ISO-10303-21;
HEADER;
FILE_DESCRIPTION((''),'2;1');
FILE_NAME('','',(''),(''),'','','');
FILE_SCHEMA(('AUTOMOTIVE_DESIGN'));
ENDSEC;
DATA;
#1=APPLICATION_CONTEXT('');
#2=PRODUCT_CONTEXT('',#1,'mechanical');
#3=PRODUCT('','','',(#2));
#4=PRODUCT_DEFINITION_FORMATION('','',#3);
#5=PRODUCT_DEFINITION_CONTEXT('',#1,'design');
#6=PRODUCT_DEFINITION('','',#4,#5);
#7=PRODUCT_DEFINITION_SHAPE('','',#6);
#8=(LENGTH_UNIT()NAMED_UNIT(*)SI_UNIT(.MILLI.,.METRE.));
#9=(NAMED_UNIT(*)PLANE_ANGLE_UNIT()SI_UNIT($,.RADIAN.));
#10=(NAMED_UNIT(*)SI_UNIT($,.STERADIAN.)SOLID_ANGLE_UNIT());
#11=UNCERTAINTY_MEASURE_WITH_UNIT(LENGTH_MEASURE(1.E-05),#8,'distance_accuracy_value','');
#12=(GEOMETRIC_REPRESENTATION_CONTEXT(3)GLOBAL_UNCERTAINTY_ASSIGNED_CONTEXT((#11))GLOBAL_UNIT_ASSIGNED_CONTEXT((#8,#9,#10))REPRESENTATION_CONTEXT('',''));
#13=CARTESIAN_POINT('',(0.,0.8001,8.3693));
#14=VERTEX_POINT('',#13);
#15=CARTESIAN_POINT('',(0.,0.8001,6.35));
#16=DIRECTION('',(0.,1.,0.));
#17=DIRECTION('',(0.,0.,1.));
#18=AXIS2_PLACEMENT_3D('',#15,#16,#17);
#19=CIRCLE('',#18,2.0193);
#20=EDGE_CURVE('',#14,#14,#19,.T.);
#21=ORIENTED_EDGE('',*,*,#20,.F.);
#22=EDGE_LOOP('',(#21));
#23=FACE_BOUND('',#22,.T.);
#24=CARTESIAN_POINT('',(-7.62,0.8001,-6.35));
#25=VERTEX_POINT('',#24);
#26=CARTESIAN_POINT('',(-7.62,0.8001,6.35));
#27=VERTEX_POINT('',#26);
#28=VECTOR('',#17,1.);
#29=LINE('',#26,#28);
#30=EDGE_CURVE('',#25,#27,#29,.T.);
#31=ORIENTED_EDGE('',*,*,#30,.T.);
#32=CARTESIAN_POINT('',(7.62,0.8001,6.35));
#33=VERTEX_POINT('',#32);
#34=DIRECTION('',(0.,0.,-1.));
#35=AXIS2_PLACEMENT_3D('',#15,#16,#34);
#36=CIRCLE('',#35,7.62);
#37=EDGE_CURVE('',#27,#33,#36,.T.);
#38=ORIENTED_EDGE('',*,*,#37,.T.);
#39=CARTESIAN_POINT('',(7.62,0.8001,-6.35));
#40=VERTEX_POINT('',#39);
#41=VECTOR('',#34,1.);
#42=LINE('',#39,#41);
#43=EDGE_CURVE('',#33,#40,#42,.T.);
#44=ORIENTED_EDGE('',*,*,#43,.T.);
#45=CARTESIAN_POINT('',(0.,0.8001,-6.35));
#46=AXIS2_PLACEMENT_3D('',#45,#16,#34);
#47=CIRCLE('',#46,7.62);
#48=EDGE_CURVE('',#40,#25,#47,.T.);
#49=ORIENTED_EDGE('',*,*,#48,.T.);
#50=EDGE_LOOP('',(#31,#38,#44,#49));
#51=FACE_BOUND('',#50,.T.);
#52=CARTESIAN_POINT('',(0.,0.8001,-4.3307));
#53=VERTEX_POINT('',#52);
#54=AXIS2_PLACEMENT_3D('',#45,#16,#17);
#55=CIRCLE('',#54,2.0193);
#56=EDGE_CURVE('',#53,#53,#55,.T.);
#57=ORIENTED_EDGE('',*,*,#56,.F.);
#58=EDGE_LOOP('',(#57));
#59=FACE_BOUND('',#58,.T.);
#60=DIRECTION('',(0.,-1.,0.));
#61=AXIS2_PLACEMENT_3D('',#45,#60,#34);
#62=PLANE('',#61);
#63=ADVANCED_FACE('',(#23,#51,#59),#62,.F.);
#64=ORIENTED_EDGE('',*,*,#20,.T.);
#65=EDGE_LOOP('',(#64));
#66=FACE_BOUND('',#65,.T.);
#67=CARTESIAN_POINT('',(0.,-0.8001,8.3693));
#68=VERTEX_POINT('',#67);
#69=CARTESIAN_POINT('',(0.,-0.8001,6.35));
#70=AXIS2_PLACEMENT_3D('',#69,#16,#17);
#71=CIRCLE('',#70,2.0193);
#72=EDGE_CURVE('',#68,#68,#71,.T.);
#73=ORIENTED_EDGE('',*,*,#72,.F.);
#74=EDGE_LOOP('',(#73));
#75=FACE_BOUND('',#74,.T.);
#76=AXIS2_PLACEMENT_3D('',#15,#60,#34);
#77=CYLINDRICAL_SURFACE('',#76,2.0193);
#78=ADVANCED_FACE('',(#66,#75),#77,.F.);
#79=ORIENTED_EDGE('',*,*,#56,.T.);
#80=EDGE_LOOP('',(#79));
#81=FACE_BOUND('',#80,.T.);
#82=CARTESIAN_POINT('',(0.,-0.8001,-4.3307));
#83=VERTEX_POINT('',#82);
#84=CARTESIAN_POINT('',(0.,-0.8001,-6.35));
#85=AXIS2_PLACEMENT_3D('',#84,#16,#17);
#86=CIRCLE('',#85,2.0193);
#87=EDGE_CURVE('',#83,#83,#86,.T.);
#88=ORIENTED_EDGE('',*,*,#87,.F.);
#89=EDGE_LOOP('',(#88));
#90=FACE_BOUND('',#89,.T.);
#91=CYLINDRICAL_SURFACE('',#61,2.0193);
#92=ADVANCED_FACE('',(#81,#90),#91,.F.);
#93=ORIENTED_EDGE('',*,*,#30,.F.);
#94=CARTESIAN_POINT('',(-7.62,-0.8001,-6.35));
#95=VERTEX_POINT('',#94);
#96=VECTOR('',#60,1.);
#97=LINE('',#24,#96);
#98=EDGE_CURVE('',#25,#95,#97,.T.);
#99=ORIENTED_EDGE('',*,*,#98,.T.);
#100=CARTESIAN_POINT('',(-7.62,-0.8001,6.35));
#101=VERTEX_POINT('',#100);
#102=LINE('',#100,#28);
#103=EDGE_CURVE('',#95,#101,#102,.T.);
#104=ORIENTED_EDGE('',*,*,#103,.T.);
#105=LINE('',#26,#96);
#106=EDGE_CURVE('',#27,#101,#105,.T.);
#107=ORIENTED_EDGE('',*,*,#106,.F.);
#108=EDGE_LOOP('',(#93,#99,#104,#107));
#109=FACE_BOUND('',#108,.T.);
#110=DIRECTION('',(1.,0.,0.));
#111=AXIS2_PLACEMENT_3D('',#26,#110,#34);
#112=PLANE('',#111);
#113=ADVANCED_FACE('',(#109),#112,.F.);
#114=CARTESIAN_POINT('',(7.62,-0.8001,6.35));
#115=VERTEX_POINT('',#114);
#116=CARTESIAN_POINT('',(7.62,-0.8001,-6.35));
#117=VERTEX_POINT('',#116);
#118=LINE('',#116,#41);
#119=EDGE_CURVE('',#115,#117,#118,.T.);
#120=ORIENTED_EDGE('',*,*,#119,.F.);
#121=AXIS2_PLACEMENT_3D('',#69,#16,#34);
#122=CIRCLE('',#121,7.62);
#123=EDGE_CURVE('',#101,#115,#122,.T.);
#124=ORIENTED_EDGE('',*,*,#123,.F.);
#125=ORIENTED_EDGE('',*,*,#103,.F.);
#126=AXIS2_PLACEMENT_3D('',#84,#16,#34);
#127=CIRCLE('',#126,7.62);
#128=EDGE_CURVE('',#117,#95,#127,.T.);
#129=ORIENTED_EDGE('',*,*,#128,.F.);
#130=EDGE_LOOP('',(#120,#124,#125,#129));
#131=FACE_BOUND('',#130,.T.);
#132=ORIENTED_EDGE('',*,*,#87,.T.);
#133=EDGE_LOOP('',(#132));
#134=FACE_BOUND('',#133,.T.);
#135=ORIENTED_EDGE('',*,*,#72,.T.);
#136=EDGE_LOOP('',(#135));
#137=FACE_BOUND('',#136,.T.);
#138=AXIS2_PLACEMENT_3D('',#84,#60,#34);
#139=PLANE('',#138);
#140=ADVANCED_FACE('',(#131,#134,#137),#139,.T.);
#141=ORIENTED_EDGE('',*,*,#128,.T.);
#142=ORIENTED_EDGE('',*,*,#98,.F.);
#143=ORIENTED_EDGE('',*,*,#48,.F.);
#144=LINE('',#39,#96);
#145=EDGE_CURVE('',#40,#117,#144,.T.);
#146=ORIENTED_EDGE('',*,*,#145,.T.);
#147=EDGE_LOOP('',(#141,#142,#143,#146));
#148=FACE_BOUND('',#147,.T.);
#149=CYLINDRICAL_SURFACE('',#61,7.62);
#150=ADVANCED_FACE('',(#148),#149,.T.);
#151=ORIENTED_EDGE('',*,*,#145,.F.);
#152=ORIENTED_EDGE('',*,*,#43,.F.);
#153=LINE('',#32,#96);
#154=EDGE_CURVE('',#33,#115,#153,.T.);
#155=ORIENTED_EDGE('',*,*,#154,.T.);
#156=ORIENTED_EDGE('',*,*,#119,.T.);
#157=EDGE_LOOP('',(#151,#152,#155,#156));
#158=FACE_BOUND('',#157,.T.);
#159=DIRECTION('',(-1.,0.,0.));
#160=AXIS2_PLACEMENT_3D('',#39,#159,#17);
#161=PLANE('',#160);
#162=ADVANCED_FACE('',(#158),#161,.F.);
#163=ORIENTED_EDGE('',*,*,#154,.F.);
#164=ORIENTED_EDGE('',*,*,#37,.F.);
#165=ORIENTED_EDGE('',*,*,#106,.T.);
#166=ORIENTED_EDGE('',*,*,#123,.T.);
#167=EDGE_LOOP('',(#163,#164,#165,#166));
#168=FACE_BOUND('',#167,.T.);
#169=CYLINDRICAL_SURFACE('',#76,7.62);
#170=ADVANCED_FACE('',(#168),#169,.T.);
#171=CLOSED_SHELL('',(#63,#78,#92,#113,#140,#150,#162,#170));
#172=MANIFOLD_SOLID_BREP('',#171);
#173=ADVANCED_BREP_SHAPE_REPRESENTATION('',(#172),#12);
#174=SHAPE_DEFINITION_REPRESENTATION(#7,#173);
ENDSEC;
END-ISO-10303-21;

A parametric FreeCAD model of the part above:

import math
import FreeCAD as App
import Part
import Sketcher
from FreeCAD import Vector
Q = App.Units.Quantity

doc = App.newDocument("Part")
body = doc.addObject("PartDesign::Body", "Body")

sketch1 = doc.addObject("Sketcher::SketchObject", "Sketch")
body.addObject(sketch1)
sketch1.AttachmentSupport = (doc.XZ_Plane, [""])
sketch1.MapMode = "FlatFace"
sketch1.addGeometry([
    Part.LineSegment(Vector(-7.62, -6.35, 0), Vector(-7.62, 6.35, 0)),
    Part.ArcOfCircle(Part.Circle(Vector(0, 6.35, 0), Vector(0, 0, 1), 7.62), math.radians(0), math.radians(180)),
    Part.LineSegment(Vector(7.62, 6.35, 0), Vector(7.62, -6.35, 0)),
    Part.ArcOfCircle(Part.Circle(Vector(0, -6.35, 0), Vector(0, 0, 1), 7.62), math.radians(180), math.radians(360)),
    Part.Circle(Vector(0, 6.35, 0), Vector(0, 0, 1), 2.0193),
    Part.Circle(Vector(0, -6.35, 0), Vector(0, 0, 1), 2.0193),
], False)
sketch1.addConstraint([
    Sketcher.Constraint("Tangent", 0, 2, 1, 2),
    Sketcher.Constraint("Tangent", 1, 1, 2, 1),
    Sketcher.Constraint("Tangent", 2, 2, 3, 2),
    Sketcher.Constraint("Tangent", 3, 1, 0, 1),
    Sketcher.Constraint("Vertical", 0),
    Sketcher.Constraint("Vertical", 2),
    Sketcher.Constraint("Coincident", 4, 3, 1, 3),
    Sketcher.Constraint("Coincident", 5, 3, 3, 3),
    Sketcher.Constraint("Equal", 4, 5),
    Sketcher.Constraint("Symmetric", 1, 3, 3, 3, -1, 1),
    Sketcher.Constraint("Radius", 1, Q("0.3 in")),
    Sketcher.Constraint("Diameter", 4, Q("0.159 in")),
    Sketcher.Constraint("DistanceY", 0, 1, 0, 2, Q("0.5 in")),
])
pad1 = doc.addObject("PartDesign::Pad", "Pad")
body.addObject(pad1)
pad1.Profile = sketch1
pad1.Length = Q("0.063 in")
pad1.Midplane = True

doc.recompute()
